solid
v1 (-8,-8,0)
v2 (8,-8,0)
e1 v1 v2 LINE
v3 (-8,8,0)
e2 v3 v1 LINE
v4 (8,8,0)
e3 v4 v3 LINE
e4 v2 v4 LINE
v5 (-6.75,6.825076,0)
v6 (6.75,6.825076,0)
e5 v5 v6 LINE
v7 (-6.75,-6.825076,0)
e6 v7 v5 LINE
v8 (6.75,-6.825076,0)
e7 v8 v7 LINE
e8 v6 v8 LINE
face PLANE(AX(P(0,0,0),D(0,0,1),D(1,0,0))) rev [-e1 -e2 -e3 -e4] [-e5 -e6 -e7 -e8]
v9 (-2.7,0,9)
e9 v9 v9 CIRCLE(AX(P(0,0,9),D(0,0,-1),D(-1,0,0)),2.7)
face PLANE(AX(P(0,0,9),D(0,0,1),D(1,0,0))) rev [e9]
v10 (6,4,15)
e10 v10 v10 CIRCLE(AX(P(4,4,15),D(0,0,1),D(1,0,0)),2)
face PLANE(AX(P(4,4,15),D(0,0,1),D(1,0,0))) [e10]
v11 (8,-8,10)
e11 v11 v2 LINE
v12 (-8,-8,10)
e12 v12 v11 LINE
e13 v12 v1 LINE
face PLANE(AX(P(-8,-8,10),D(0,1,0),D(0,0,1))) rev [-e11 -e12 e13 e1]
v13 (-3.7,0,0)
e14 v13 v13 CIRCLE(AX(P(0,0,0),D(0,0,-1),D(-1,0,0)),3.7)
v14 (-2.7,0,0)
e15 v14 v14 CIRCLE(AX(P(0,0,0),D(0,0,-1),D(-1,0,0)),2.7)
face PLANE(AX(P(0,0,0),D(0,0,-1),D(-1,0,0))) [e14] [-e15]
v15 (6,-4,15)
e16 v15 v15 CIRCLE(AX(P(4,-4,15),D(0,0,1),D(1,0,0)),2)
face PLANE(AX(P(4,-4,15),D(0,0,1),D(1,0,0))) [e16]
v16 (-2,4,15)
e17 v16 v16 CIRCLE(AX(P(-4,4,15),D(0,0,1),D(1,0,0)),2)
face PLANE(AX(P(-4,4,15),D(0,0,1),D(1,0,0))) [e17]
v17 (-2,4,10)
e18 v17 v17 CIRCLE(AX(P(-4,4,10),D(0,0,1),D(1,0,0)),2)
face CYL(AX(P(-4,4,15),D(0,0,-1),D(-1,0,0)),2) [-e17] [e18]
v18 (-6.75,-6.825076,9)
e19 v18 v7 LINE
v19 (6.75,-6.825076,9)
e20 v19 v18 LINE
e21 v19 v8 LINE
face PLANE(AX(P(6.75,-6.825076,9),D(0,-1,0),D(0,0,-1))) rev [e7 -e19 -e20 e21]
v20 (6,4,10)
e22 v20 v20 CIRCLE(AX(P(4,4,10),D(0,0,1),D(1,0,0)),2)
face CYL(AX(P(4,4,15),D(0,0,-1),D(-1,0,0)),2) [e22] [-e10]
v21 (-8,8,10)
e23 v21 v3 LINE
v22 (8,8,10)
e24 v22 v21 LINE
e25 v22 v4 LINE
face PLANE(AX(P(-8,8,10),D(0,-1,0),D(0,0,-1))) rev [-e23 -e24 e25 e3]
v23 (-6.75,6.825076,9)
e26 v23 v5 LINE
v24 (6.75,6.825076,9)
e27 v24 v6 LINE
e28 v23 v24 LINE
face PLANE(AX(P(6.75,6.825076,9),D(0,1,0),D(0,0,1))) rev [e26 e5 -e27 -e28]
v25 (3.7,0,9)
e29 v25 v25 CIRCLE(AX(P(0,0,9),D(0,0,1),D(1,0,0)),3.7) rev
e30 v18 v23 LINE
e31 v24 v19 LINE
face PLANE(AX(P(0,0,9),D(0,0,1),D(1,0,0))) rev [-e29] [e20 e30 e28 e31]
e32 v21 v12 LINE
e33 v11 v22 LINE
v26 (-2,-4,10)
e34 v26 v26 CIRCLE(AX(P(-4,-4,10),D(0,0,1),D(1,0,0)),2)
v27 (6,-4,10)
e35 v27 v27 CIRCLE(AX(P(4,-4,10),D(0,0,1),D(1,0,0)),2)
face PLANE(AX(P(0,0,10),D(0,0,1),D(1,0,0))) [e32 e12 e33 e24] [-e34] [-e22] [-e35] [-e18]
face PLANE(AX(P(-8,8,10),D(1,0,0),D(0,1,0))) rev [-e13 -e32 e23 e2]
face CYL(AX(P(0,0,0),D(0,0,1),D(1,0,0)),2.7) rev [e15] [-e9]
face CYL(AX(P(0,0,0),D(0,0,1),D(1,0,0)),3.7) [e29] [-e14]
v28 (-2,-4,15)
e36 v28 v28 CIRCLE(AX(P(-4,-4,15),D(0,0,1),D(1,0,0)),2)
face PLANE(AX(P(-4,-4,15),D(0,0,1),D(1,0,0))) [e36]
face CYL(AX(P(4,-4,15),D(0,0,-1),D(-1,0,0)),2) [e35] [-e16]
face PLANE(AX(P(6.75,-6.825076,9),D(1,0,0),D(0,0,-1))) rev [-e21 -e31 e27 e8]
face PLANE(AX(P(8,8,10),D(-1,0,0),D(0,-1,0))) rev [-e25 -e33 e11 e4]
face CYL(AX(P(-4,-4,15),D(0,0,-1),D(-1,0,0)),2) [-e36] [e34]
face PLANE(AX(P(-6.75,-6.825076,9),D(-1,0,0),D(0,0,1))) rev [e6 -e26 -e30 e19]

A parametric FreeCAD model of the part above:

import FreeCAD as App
import Part
import Sketcher

V = App.Vector

doc = App.newDocument("Part")
params = doc.addObject("Spreadsheet::Sheet", "Params")
for row, (alias, value) in enumerate([
    ("sketch1_width", "16 mm"),
    ("pad1_length", "10 mm"),
    ("sketch2_diameter", "4 mm"),
    ("pad2_length", "5 mm"),
    ("sketch3_width", "13.5 mm"),
    ("pocket1_length", "9 mm"),
    ("sketch4_diameter", "7.4 mm"),
    ("sketch4_diameter2", "5.4 mm"),
    ("pad3_length", "9 mm"),
], start=1):
    params.set(f"A{row}", alias)
    params.set(f"B{row}", "=" + value)
    params.setAlias(f"B{row}", alias)

body = doc.addObject("PartDesign::Body", "Body")

# Sketch on XY plane
sketch1 = body.newObject("Sketcher::SketchObject", "Sketch")
sketch1.AttachmentSupport = (doc.getObject("XY_Plane"), [""])
sketch1.MapMode = "FlatFace"
sketch1.addGeometry(Part.LineSegment(V(-8, 8, 0), V(-8, -8, 0)), False)
sketch1.addGeometry(Part.LineSegment(V(-8, -8, 0), V(8, -8, 0)), False)
sketch1.addGeometry(Part.LineSegment(V(8, -8, 0), V(8, 8, 0)), False)
sketch1.addGeometry(Part.LineSegment(V(8, 8, 0), V(-8, 8, 0)), False)
sketch1.addConstraint(Sketcher.Constraint("Coincident", 0, 2, 1, 1))
sketch1.addConstraint(Sketcher.Constraint("Coincident", 1, 2, 2, 1))
sketch1.addConstraint(Sketcher.Constraint("Coincident", 2, 2, 3, 1))
sketch1.addConstraint(Sketcher.Constraint("Coincident", 3, 2, 0, 1))
sketch1.addConstraint(Sketcher.Constraint("Vertical", 0))
sketch1.addConstraint(Sketcher.Constraint("Horizontal", 1))
sketch1.addConstraint(Sketcher.Constraint("Vertical", 2))
sketch1.addConstraint(Sketcher.Constraint("Horizontal", 3))
sketch1.addConstraint(Sketcher.Constraint("Symmetric", 0, 2, 2, 2, -1, 1))
sketch1.addConstraint(Sketcher.Constraint("Equal", 3, 0))
sketch1.addConstraint(Sketcher.Constraint("DistanceX", 1, 1, 1, 2, 16.0))
sketch1.setExpression("Constraints[10]", "Params.sketch1_width")
pad1 = body.newObject("PartDesign::Pad", "Pad")
pad1.Profile = sketch1
pad1.setExpression("Length", "Params.pad1_length")

# Sketch on XY plane
sketch2 = body.newObject("Sketcher::SketchObject", "Sketch001")
sketch2.AttachmentSupport = (doc.getObject("XY_Plane"), [""])
sketch2.MapMode = "FlatFace"
sketch2.AttachmentOffset = App.Placement(V(0, 0, 10), App.Rotation())
sketch2.addGeometry(Part.Circle(V(-4, 4, 0), V(0, 0, 1), 2), False)
sketch2.addGeometry(Part.Circle(V(4, 4, 0), V(0, 0, 1), 2), False)
sketch2.addGeometry(Part.Circle(V(4, -4, 0), V(0, 0, 1), 2), False)
sketch2.addGeometry(Part.Circle(V(-4, -4, 0), V(0, 0, 1), 2), False)
sketch2.addConstraint(Sketcher.Constraint("Equal", 0, 1))
sketch2.addConstraint(Sketcher.Constraint("Equal", 1, 2))
sketch2.addConstraint(Sketcher.Constraint("Equal", 2, 3))
sketch2.addConstraint(Sketcher.Constraint("Symmetric", 0, 3, 2, 3, -1, 1))
sketch2.addConstraint(Sketcher.Constraint("Symmetric", 1, 3, 3, 3, -1, 1))
sketch2.addConstraint(Sketcher.Constraint("Symmetric", 0, 3, 1, 3, -2))
sketch2.addConstraint(Sketcher.Constraint("Diameter", 0, 4.0))
sketch2.addConstraint(Sketcher.Constraint("DistanceX", 0, 3, -1, 1, 4.0))
sketch2.addConstraint(Sketcher.Constraint("DistanceY", -1, 1, 0, 3, 4.0))
sketch2.setExpression("Constraints[6]", "Params.sketch2_diameter")
pad2 = body.newObject("PartDesign::Pad", "Pad001")
pad2.Profile = sketch2
pad2.setExpression("Length", "Params.pad2_length")

# Sketch on XY plane
sketch3 = body.newObject("Sketcher::SketchObject", "Sketch002")
sketch3.AttachmentSupport = (doc.getObject("XY_Plane"), [""])
sketch3.MapMode = "FlatFace"
sketch3.addGeometry(Part.LineSegment(V(7, 7, 0), V(7, -7, 0)), False)
sketch3.addGeometry(Part.LineSegment(V(7, -7, 0), V(-7, -7, 0)), False)
sketch3.addGeometry(Part.LineSegment(V(-7, -7, 0), V(-7, 7, 0)), False)
sketch3.addGeometry(Part.LineSegment(V(-7, 7, 0), V(7, 7, 0)), False)
sketch3.addConstraint(Sketcher.Constraint("Coincident", 0, 2, 1, 1))
sketch3.addConstraint(Sketcher.Constraint("Coincident", 1, 2, 2, 1))
sketch3.addConstraint(Sketcher.Constraint("Coincident", 2, 2, 3, 1))
sketch3.addConstraint(Sketcher.Constraint("Coincident", 3, 2, 0, 1))
sketch3.addConstraint(Sketcher.Constraint("Vertical", 0))
sketch3.addConstraint(Sketcher.Constraint("Horizontal", 1))
sketch3.addConstraint(Sketcher.Constraint("Vertical", 2))
sketch3.addConstraint(Sketcher.Constraint("Horizontal", 3))
sketch3.addConstraint(Sketcher.Constraint("Symmetric", 0, 2, 2, 2, -1, 1))
sketch3.addConstraint(Sketcher.Constraint("DistanceX", 1, 2, 1, 1, 13.5))
sketch3.addConstraint(Sketcher.Constraint("DistanceY", 0, 2, 0, 1, 13.650152))
sketch3.setExpression("Constraints[9]", "Params.sketch3_width")
pocket1 = body.newObject("PartDesign::Pocket", "Pocket")
pocket1.Profile = sketch3
pocket1.setExpression("Length", "Params.pocket1_length")
pocket1.Reversed = True

# Sketch on XY plane
sketch4 = body.newObject("Sketcher::SketchObject", "Sketch003")
sketch4.AttachmentSupport = (doc.getObject("XY_Plane"), [""])
sketch4.MapMode = "FlatFace"
sketch4.AttachmentOffset = App.Placement(V(0, 0, 9), App.Rotation())
sketch4.addGeometry(Part.Circle(V(0, 0, 0), V(0, 0, 1), 3.7), False)
sketch4.addGeometry(Part.Circle(V(0, 0, 0), V(0, 0, 1), 2.7), False)
sketch4.addConstraint(Sketcher.Constraint("Coincident", 0, 3, -1, 1))
sketch4.addConstraint(Sketcher.Constraint("Coincident", 1, 3, -1, 1))
sketch4.addConstraint(Sketcher.Constraint("Diameter", 0, 7.4))
sketch4.addConstraint(Sketcher.Constraint("Diameter", 1, 5.4))
sketch4.setExpression("Constraints[2]", "Params.sketch4_diameter")
sketch4.setExpression("Constraints[3]", "Params.sketch4_diameter2")
pad3 = body.newObject("PartDesign::Pad", "Pad002")
pad3.Profile = sketch4
pad3.setExpression("Length", "Params.pad3_length")
pad3.Reversed = True

doc.recompute()
